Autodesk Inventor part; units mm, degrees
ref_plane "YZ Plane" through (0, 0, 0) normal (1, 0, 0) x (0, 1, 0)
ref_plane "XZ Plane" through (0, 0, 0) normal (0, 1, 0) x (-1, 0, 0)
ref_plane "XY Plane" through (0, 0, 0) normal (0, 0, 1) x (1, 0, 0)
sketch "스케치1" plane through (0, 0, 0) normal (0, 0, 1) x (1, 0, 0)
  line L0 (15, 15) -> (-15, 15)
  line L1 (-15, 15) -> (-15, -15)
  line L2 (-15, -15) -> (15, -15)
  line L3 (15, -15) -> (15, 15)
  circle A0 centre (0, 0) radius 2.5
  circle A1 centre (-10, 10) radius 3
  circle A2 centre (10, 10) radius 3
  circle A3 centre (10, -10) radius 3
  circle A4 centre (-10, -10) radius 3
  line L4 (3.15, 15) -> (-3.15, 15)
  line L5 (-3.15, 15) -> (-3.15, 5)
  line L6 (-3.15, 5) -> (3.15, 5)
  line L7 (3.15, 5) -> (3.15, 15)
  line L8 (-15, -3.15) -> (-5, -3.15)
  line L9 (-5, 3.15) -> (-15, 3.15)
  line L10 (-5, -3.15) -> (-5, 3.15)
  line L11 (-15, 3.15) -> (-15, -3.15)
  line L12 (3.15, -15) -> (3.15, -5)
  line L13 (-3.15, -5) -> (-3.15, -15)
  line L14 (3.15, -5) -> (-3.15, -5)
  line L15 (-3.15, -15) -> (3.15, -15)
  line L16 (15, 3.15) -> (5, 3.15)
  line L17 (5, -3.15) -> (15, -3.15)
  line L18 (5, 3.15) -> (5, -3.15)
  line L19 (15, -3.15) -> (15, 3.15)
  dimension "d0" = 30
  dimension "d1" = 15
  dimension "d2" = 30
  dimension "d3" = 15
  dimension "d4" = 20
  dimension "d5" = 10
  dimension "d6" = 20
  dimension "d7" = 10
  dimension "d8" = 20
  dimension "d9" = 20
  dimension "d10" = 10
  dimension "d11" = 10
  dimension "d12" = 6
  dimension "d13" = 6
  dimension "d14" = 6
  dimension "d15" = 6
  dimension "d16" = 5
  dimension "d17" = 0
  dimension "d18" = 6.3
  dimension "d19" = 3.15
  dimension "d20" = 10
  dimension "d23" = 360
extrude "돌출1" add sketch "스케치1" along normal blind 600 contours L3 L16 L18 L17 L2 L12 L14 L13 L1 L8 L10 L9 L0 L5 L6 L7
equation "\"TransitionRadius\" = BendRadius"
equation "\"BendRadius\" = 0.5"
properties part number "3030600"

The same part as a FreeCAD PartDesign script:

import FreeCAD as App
import Part
import Sketcher

V = App.Vector


def add_polygon(sketch, points):
    """Adds a closed chain of lines whose ends are joined by coincident constraints."""
    first, n = sketch.GeometryCount, len(points)
    for a, b in zip(points, points[1:] + points[:1]):
        sketch.addGeometry(Part.LineSegment(App.Vector(*a, 0), App.Vector(*b, 0)), False)
    for i in range(n):
        sketch.addConstraint(Sketcher.Constraint("Coincident", first + i, 2, first + (i + 1) % n, 1))

doc = App.newDocument("Part")
body = doc.addObject("PartDesign::Body", "Body")

sketch1 = body.newObject("Sketcher::SketchObject", "Sketch")
sketch1.AttachmentSupport = (doc.getObject("XY_Plane"), [""])
sketch1.MapMode = "FlatFace"
add_polygon(sketch1, [(15, 3.15), (15, 15), (3.15, 15), (3.15, 5), (-3.15, 5), (-3.15, 15), (-15, 15), (-15, 3.15), (-5, 3.15), (-5, -3.15), (-15, -3.15), (-15, -15), (-3.15, -15), (-3.15, -5), (3.15, -5), (3.15, -15), (15, -15), (15, -3.15), (5, -3.15), (5, 3.15)])
sketch1.addGeometry(Part.Circle(V(-10, -10, 0), V(0, 0, 1), 3), False)
sketch1.addGeometry(Part.Circle(V(10, -10, 0), V(0, 0, 1), 3), False)
sketch1.addGeometry(Part.Circle(V(-10, 10, 0), V(0, 0, 1), 3), False)
sketch1.addGeometry(Part.Circle(V(0, 0, 0), V(0, 0, 1), 2.5), False)
sketch1.addGeometry(Part.Circle(V(10, 10, 0), V(0, 0, 1), 3), False)
sketch1.addConstraint([
    Sketcher.Constraint("Vertical", 0),
    Sketcher.Constraint("Horizontal", 1),
    Sketcher.Constraint("Vertical", 2),
    Sketcher.Constraint("Horizontal", 3),
    Sketcher.Constraint("Vertical", 4),
    Sketcher.Constraint("Horizontal", 5),
    Sketcher.Constraint("Vertical", 6),
    Sketcher.Constraint("Horizontal", 7),
    Sketcher.Constraint("Vertical", 8),
    Sketcher.Constraint("Horizontal", 9),
    Sketcher.Constraint("Vertical", 10),
    Sketcher.Constraint("Horizontal", 11),
    Sketcher.Constraint("Vertical", 12),
    Sketcher.Constraint("Horizontal", 13),
    Sketcher.Constraint("Vertical", 14),
    Sketcher.Constraint("Horizontal", 15),
    Sketcher.Constraint("Vertical", 16),
    Sketcher.Constraint("Horizontal", 17),
    Sketcher.Constraint("Vertical", 18),
    Sketcher.Constraint("Horizontal", 19),
    Sketcher.Constraint("Coincident", 23, 3, -1, 1),
    Sketcher.Constraint("Equal", 20, 21),
    Sketcher.Constraint("Equal", 21, 22),
    Sketcher.Constraint("Equal", 22, 24),
    Sketcher.Constraint("Symmetric", 21, 3, 22, 3, -1, 1),
    Sketcher.Constraint("Symmetric", 20, 3, 24, 3, -1, 1),
    Sketcher.Constraint("Symmetric", 0, 2, 10, 2, -1, 1),
    Sketcher.Constraint("Symmetric", 2, 2, 12, 2, -1, 1),
    Sketcher.Constraint("Symmetric", 4, 2, 14, 2, -1, 1),
    Sketcher.Constraint("Symmetric", 6, 2, 16, 2, -1, 1),
    Sketcher.Constraint("Symmetric", 8, 2, 18, 2, -1, 1),
    Sketcher.Constraint("Symmetric", 20, 3, 21, 3, -2),
    Sketcher.Constraint("Symmetric", 1, 2, 4, 2, -2),
    Sketcher.Constraint("Symmetric", 9, 2, 16, 2, -2),
    Sketcher.Constraint("Equal", 15, 0),
    Sketcher.Constraint("Equal", 19, 2),
    Sketcher.Constraint("Equal", 13, 8),
    Sketcher.Constraint("Diameter", 20, 6.0),
    Sketcher.Constraint("Diameter", 23, 5.0),
    Sketcher.Constraint("DistanceX", 7, 1, 7, 2, 10.0),
    Sketcher.Constraint("DistanceX", 3, 2, 3, 1, 6.3),
    Sketcher.Constraint("DistanceX", 20, 3, -1, 1, 10.0),
    Sketcher.Constraint("DistanceY", 20, 3, -1, 1, 10.0),
    Sketcher.Constraint("DistanceX", -1, 1, 0, 2, 15.0),
])
pad1 = body.newObject("PartDesign::Pad", "Pad")
pad1.Profile = sketch1
pad1.Length = 600

doc.recompute()
